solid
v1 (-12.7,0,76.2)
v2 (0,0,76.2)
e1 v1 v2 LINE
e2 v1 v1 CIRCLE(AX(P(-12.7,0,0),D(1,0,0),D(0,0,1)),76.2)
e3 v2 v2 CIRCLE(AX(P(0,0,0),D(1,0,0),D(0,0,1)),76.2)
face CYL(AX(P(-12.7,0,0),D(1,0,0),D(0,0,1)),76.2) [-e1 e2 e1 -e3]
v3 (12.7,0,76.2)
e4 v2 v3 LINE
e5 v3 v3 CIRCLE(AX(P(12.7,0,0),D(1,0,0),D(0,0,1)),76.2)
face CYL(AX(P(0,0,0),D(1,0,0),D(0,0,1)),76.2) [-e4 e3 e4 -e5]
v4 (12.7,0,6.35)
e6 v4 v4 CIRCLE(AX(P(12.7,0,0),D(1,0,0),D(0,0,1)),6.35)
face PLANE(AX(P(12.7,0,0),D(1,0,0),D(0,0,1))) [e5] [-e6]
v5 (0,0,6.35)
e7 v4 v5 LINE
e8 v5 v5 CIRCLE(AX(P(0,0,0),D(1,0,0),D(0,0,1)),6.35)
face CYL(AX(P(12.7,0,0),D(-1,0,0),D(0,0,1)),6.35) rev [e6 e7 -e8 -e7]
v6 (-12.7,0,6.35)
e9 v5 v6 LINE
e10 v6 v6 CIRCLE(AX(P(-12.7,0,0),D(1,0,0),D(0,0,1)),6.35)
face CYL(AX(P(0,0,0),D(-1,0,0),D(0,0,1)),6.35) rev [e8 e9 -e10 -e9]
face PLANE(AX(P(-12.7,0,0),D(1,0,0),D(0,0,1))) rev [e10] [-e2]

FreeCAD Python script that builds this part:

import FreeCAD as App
import Part
import Sketcher

V = App.Vector
Q = App.Units.Quantity


def add_polygon(sketch, points):
    """Adds a closed chain of lines whose ends are joined by coincident constraints."""
    first, n = sketch.GeometryCount, len(points)
    for a, b in zip(points, points[1:] + points[:1]):
        sketch.addGeometry(Part.LineSegment(App.Vector(*a, 0), App.Vector(*b, 0)), False)
    for i in range(n):
        sketch.addConstraint(Sketcher.Constraint("Coincident", first + i, 2, first + (i + 1) % n, 1))

doc = App.newDocument("Part")
body = doc.addObject("PartDesign::Body", "Body")

sketch1 = doc.addObject("Sketcher::SketchObject", "Sketch")
body.addObject(sketch1)
sketch1.AttachmentSupport = (doc.XZ_Plane, [""])
sketch1.MapMode = "FlatFace"
add_polygon(sketch1, [(13, 6), (-13, 6), (-13, 76), (13, 76)])
sketch1.addConstraint([
    Sketcher.Constraint("Horizontal", 0),
    Sketcher.Constraint("Vertical", 1),
    Sketcher.Constraint("Horizontal", 2),
    Sketcher.Constraint("Vertical", 3),
    Sketcher.Constraint("DistanceX", 0, 2, 0, 1, Q("1 in")),
    Sketcher.Constraint("DistanceY", -1, 1, 1, 2, Q("3 in")),
    Sketcher.Constraint("DistanceY", -1, 1, 0, 2, Q("0.25 in")),
    Sketcher.Constraint("DistanceX", 0, 2, -1, 1, Q("0.5 in")),
])
revolution = doc.addObject("PartDesign::Revolution", "Revolution")
body.addObject(revolution)
revolution.Profile = sketch1
revolution.ReferenceAxis = (sketch1, ["H_Axis"])
revolution.Angle = 360

doc.recompute()
